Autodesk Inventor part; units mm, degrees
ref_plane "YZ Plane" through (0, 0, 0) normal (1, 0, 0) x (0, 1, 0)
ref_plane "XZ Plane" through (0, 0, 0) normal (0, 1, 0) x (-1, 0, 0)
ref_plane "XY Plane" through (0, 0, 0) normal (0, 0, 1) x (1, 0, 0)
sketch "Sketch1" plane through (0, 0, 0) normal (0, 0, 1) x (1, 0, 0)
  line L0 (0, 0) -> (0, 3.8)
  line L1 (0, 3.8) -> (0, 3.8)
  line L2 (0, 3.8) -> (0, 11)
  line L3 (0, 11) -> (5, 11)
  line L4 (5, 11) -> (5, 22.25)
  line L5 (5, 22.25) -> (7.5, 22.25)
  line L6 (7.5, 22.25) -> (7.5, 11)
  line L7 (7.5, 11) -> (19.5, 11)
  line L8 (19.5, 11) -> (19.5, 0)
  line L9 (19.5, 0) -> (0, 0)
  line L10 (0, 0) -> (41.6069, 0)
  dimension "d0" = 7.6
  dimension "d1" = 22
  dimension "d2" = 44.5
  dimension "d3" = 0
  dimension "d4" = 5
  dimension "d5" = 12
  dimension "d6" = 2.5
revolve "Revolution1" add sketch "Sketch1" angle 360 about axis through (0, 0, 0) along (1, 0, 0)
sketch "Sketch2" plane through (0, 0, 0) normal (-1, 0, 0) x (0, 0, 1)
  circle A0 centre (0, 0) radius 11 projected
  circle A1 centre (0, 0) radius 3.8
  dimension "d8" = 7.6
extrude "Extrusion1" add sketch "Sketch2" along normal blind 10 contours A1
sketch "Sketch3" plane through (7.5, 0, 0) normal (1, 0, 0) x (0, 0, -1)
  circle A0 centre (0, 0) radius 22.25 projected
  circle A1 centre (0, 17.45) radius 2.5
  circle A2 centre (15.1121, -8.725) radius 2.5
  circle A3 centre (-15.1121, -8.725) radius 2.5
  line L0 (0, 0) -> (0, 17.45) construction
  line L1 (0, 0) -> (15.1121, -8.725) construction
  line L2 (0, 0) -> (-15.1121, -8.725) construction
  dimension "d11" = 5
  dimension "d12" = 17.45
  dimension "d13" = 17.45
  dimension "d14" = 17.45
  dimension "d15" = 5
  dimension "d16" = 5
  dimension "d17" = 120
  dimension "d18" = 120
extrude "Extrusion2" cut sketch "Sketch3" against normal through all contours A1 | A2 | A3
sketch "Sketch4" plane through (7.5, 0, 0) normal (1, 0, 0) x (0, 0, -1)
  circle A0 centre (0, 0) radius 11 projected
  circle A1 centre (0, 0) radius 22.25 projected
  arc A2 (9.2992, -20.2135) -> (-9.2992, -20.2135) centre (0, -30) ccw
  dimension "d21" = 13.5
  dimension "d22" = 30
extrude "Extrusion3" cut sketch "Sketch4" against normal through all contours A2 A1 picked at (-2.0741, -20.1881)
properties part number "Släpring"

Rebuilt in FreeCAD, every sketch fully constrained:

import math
import FreeCAD as App
import Part
import Sketcher
from FreeCAD import Vector
Q = App.Units.Quantity

doc = App.newDocument("Part")
body = doc.addObject("PartDesign::Body", "Body")

sketch1 = body.newObject("Sketcher::SketchObject", "Sketch")
sketch1.AttachmentSupport = (doc.getObject("XY_Plane"), [""])
sketch1.MapMode = "FlatFace"
sketch1.addGeometry(Part.LineSegment(Vector(0, 11, 0), Vector(0, 0, 0)), False)
sketch1.addGeometry(Part.LineSegment(Vector(0, 0, 0), Vector(19.5, 0, 0)), False)
sketch1.addGeometry(Part.LineSegment(Vector(19.5, 0, 0), Vector(19.5, 11, 0)), False)
sketch1.addGeometry(Part.LineSegment(Vector(19.5, 11, 0), Vector(7.5, 11, 0)), False)
sketch1.addGeometry(Part.LineSegment(Vector(7.5, 11, 0), Vector(7.5, 22.2, 0)), False)
sketch1.addGeometry(Part.LineSegment(Vector(7.5, 22.2, 0), Vector(5, 22.2, 0)), False)
sketch1.addGeometry(Part.LineSegment(Vector(5, 22.2, 0), Vector(5, 11, 0)), False)
sketch1.addGeometry(Part.LineSegment(Vector(5, 11, 0), Vector(0, 11, 0)), False)
sketch1.addConstraint(Sketcher.Constraint("Coincident", 0, 2, 1, 1))
sketch1.addConstraint(Sketcher.Constraint("Coincident", 1, 2, 2, 1))
sketch1.addConstraint(Sketcher.Constraint("Coincident", 2, 2, 3, 1))
sketch1.addConstraint(Sketcher.Constraint("Coincident", 3, 2, 4, 1))
sketch1.addConstraint(Sketcher.Constraint("Coincident", 4, 2, 5, 1))
sketch1.addConstraint(Sketcher.Constraint("Coincident", 5, 2, 6, 1))
sketch1.addConstraint(Sketcher.Constraint("Coincident", 6, 2, 7, 1))
sketch1.addConstraint(Sketcher.Constraint("Coincident", 7, 2, 0, 1))
sketch1.addConstraint(Sketcher.Constraint("Vertical", 0))
sketch1.addConstraint(Sketcher.Constraint("Horizontal", 1))
sketch1.addConstraint(Sketcher.Constraint("Vertical", 2))
sketch1.addConstraint(Sketcher.Constraint("Horizontal", 3))
sketch1.addConstraint(Sketcher.Constraint("Vertical", 4))
sketch1.addConstraint(Sketcher.Constraint("Horizontal", 5))
sketch1.addConstraint(Sketcher.Constraint("Vertical", 6))
sketch1.addConstraint(Sketcher.Constraint("Horizontal", 7))
sketch1.addConstraint(Sketcher.Constraint("Coincident", 0, 2, -1, 1))
sketch1.addConstraint(Sketcher.Constraint("Horizontal", 3, 2, 6, 2))
sketch1.addConstraint(Sketcher.Constraint("DistanceX", 3, 2, 3, 1, Q("12 mm")))
sketch1.addConstraint(Sketcher.Constraint("DistanceX", 7, 2, 7, 1, Q("5 mm")))
sketch1.addConstraint(Sketcher.Constraint("DistanceX", 5, 2, 5, 1, Q("2.5 mm")))
sketch1.addConstraint(Sketcher.Constraint("DistanceY", 0, 2, 0, 1, Q("11 mm")))
sketch1.addConstraint(Sketcher.Constraint("DistanceY", 4, 1, 4, 2, Q("11.25 mm")))
revolution = body.newObject("PartDesign::Revolution", "Revolution")
revolution.Profile = sketch1
revolution.ReferenceAxis = (sketch1, ["H_Axis"])
revolution.Angle = 360

sketch2 = body.newObject("Sketcher::SketchObject", "Sketch001")
sketch2.AttachmentSupport = (doc.getObject("YZ_Plane"), [""])
sketch2.MapMode = "FlatFace"
sketch2.addGeometry(Part.Circle(Vector(0, 0, 0), Vector(0, 0, 1), 3.8), False)
sketch2.addConstraint(Sketcher.Constraint("Coincident", 0, 3, -1, 1))
sketch2.addConstraint(Sketcher.Constraint("Diameter", 0, Q("7.6 mm")))
pad1 = body.newObject("PartDesign::Pad", "Pad")
pad1.Profile = sketch2
pad1.Length = 10
pad1.Reversed = True

sketch3 = body.newObject("Sketcher::SketchObject", "Sketch002")
sketch3.AttachmentSupport = (doc.getObject("YZ_Plane"), [""])
sketch3.MapMode = "FlatFace"
sketch3.AttachmentOffset = App.Placement(Vector(0, 0, 7.5), App.Rotation())
sketch3.addGeometry(Part.Circle(Vector(17.4, 0, 0), Vector(0, 0, 1), 2.5), False)
sketch3.addGeometry(Part.Circle(Vector(-8.7, -15.1, 0), Vector(0, 0, 1), 2.5), False)
sketch3.addGeometry(Part.Circle(Vector(-8.7, 15.1, 0), Vector(0, 0, 1), 2.5), False)
sketch3.addConstraint(Sketcher.Constraint("Equal", 0, 1))
sketch3.addConstraint(Sketcher.Constraint("Equal", 1, 2))
sketch3.addConstraint(Sketcher.Constraint("Symmetric", 1, 3, 2, 3, -1))
sketch3.addConstraint(Sketcher.Constraint("PointOnObject", 0, 3, -1))
sketch3.addConstraint(Sketcher.Constraint("Diameter", 0, Q("5 mm")))
sketch3.addConstraint(Sketcher.Constraint("DistanceX", -1, 1, 0, 3, Q("17.45 mm")))
sketch3.addConstraint(Sketcher.Constraint("DistanceX", 1, 3, -1, 1, Q("8.725 mm")))
sketch3.addConstraint(Sketcher.Constraint("DistanceY", 1, 3, -1, 1, Q("15.112 mm")))
pocket1 = body.newObject("PartDesign::Pocket", "Pocket")
pocket1.Profile = sketch3
pocket1.Type = "ThroughAll"

sketch4 = body.newObject("Sketcher::SketchObject", "Sketch003")
sketch4.AttachmentSupport = (doc.getObject("YZ_Plane"), [""])
sketch4.MapMode = "FlatFace"
sketch4.AttachmentOffset = App.Placement(Vector(0, 0, 7.5), App.Rotation())
sketch4.addGeometry(Part.ArcOfCircle(Part.Circle(Vector(-30, 0, 0), Vector(0, 0, 1), 14), math.radians(-44), math.radians(44)), False)
sketch4.addGeometry(Part.ArcOfCircle(Part.Circle(Vector(0, 0, 0), Vector(0, 0, 1), 22), math.radians(155), math.radians(205)), False)
sketch4.addConstraint(Sketcher.Constraint("Coincident", 0, 1, 1, 2))
sketch4.addConstraint(Sketcher.Constraint("Coincident", 1, 1, 0, 2))
sketch4.addConstraint(Sketcher.Constraint("Coincident", 1, 3, -1, 1))
sketch4.addConstraint(Sketcher.Constraint("PointOnObject", 0, 3, -1))
sketch4.addConstraint(Sketcher.Constraint("Radius", 0, Q("13.5 mm")))
sketch4.addConstraint(Sketcher.Constraint("DistanceX", 0, 3, -1, 1, Q("30 mm")))
sketch4.addConstraint(Sketcher.Constraint("Radius", 1, Q("22.25 mm")))
pocket2 = body.newObject("PartDesign::Pocket", "Pocket001")
pocket2.Profile = sketch4
pocket2.Type = "ThroughAll"

doc.recompute()
